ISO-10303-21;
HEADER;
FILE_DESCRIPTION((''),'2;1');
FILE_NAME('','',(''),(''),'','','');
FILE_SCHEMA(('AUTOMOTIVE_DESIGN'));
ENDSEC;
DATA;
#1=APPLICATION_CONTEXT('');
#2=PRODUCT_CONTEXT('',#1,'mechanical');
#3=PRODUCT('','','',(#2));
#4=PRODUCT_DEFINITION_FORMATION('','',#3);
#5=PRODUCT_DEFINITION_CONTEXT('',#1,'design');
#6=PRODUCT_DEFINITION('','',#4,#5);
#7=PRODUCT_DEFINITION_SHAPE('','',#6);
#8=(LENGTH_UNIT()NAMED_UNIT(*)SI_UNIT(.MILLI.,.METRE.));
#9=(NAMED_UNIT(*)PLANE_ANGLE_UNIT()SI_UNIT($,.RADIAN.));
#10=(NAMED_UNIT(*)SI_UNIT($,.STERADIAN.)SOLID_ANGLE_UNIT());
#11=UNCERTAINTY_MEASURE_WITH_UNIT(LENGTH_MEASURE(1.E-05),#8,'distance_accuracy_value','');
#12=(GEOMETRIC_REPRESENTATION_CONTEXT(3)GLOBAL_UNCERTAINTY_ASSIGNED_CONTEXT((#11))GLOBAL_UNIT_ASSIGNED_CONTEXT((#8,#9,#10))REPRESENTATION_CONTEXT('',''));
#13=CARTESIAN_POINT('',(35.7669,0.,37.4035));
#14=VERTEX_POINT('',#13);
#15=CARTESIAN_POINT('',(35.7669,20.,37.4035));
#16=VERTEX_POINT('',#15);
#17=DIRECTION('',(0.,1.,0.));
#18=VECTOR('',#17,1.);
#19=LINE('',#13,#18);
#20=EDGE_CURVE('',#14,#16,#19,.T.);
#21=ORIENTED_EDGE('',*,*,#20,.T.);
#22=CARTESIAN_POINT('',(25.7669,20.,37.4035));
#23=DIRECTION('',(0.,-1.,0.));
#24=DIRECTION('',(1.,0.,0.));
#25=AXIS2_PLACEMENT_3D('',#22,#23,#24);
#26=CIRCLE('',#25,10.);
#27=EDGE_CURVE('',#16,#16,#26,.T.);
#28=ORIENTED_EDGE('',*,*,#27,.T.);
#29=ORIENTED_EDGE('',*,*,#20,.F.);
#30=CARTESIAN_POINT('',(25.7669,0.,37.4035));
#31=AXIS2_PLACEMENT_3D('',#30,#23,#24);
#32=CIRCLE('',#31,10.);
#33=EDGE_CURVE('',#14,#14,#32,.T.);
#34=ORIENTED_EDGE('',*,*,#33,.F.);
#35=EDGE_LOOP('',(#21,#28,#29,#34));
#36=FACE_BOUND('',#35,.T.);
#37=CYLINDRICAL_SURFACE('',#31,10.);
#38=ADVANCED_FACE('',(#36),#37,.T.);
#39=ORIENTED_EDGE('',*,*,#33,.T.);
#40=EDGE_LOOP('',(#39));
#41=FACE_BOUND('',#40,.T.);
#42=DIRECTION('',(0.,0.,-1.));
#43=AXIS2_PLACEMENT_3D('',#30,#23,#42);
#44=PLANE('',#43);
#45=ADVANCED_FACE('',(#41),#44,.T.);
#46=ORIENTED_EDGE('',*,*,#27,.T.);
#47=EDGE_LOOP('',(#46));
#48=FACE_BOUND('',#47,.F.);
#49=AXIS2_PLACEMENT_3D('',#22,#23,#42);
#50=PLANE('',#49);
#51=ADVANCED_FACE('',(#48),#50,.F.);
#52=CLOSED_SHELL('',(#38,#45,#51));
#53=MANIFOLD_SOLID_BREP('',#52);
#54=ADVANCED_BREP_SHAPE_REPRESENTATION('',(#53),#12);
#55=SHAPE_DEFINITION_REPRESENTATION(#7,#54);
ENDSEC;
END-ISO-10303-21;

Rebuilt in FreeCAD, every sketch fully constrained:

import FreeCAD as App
import Part
import Sketcher

V = App.Vector

doc = App.newDocument("Part")
params = doc.addObject("Spreadsheet::Sheet", "Params")
for row, (alias, value) in enumerate([
    ("sketch1_diameter", "20 mm"),
    ("pad1_length", "20 mm"),
], start=1):
    params.set(f"A{row}", alias)
    params.set(f"B{row}", "=" + value)
    params.setAlias(f"B{row}", alias)

body = doc.addObject("PartDesign::Body", "Body")

sketch1 = body.newObject("Sketcher::SketchObject", "Sketch")
sketch1.AttachmentSupport = (doc.getObject("XZ_Plane"), [""])
sketch1.MapMode = "FlatFace"
sketch1.addGeometry(Part.Circle(V(25.7669, 37.4035, 0), V(0, 0, 1), 10), False)
sketch1.addConstraint([
    Sketcher.Constraint("Diameter", 0, 20.0),
    Sketcher.Constraint("DistanceX", -1, 1, 0, 3, 25.767),
    Sketcher.Constraint("DistanceY", -1, 1, 0, 3, 37.4035),
])
sketch1.setExpression("Constraints[0]", "Params.sketch1_diameter")
pad1 = body.newObject("PartDesign::Pad", "Pad")
pad1.Profile = sketch1
pad1.setExpression("Length", "Params.pad1_length")
pad1.Reversed = True

doc.recompute()
